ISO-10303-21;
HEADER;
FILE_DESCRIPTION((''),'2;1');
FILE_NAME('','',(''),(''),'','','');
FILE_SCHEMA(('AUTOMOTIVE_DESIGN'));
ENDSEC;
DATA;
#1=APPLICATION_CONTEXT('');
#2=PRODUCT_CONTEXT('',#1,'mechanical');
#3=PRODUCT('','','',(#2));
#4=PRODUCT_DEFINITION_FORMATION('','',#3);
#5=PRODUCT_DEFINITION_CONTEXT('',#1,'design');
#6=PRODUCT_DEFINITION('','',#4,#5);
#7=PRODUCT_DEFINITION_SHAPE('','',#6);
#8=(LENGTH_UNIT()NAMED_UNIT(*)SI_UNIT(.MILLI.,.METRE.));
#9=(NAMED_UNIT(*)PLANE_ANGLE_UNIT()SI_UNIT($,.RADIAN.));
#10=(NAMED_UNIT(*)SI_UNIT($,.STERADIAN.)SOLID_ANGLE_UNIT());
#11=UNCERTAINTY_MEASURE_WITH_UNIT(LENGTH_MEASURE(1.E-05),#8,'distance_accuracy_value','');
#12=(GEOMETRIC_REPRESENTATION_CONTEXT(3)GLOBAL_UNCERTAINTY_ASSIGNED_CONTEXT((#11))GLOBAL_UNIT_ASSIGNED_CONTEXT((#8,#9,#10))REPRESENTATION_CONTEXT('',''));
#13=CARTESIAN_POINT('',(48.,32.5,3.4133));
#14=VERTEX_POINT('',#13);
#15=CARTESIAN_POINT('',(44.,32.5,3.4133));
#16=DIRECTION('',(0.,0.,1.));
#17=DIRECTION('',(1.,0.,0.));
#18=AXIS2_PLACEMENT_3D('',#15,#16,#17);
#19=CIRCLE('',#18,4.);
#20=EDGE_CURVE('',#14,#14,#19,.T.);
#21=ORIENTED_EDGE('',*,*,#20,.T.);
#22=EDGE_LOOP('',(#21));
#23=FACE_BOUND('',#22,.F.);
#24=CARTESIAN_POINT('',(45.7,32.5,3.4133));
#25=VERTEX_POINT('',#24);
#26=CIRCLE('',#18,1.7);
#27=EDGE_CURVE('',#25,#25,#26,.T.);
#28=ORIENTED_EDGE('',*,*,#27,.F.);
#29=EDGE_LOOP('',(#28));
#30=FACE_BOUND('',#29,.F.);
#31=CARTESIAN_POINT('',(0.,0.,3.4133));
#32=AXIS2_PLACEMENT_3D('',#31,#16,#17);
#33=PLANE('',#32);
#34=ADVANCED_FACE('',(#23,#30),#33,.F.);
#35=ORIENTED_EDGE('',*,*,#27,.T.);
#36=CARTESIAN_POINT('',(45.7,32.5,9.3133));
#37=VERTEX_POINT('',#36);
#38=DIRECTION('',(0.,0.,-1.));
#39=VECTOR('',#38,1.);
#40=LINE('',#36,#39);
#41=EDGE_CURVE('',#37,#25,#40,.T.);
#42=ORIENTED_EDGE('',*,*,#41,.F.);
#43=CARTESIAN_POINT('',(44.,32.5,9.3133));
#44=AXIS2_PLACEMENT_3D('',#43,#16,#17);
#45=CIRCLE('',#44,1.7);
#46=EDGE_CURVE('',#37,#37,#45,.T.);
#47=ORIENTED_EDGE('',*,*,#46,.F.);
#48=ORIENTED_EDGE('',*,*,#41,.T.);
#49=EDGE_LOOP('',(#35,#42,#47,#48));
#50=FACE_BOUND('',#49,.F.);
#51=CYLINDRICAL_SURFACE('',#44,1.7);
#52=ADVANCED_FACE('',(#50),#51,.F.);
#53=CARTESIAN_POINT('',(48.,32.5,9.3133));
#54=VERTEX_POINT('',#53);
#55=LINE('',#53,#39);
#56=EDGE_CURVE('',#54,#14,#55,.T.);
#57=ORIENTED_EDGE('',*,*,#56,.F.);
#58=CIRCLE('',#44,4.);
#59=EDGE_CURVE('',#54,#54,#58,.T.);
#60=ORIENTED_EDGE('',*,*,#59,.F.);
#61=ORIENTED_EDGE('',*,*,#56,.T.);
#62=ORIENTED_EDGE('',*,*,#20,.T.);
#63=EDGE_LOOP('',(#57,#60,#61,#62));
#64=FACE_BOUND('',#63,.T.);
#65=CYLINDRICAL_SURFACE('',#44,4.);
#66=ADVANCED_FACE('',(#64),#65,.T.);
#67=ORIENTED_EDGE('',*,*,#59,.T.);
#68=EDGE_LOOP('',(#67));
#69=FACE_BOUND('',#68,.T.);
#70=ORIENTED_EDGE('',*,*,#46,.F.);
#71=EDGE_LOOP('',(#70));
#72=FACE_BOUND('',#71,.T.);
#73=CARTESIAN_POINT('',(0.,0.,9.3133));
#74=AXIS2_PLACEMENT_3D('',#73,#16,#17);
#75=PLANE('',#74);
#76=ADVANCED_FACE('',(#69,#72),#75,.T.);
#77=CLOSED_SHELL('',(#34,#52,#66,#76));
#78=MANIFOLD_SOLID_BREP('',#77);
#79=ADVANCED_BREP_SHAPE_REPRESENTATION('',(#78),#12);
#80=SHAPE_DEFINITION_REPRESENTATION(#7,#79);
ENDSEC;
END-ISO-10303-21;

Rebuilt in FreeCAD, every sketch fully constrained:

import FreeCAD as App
import Part
import Sketcher
Q = App.Units.Quantity

doc = App.newDocument("Part")
body = doc.addObject("PartDesign::Body", "Body")

# Sketch on XY plane
sketch1 = body.newObject("Sketcher::SketchObject", "Sketch")
sketch1.AttachmentSupport = (doc.getObject("XY_Plane"), [""])
sketch1.MapMode = "FlatFace"
sketch1.AttachmentOffset = App.Placement(App.Vector(0, 0, 9.3133), App.Rotation())
sketch1.addGeometry([
    Part.Circle(App.Vector(44, 32.5, 0), App.Vector(0, 0, 1), 4),
    Part.Circle(App.Vector(44, 32.5, 0), App.Vector(0, 0, 1), 1.7),
], False)
sketch1.addConstraint([
    Sketcher.Constraint("Coincident", 1, 3, 0, 3),
    Sketcher.Constraint("Diameter", 0, Q("8 mm")),
    Sketcher.Constraint("Diameter", 1, Q("3.4 mm")),
    Sketcher.Constraint("DistanceX", -1, 1, 0, 3, Q("44 mm")),
    Sketcher.Constraint("DistanceY", -1, 1, 0, 3, Q("32.5 mm")),
])
pad1 = body.newObject("PartDesign::Pad", "Pad")
pad1.Profile = sketch1
pad1.Length = 5.9
pad1.Reversed = True

doc.recompute()
